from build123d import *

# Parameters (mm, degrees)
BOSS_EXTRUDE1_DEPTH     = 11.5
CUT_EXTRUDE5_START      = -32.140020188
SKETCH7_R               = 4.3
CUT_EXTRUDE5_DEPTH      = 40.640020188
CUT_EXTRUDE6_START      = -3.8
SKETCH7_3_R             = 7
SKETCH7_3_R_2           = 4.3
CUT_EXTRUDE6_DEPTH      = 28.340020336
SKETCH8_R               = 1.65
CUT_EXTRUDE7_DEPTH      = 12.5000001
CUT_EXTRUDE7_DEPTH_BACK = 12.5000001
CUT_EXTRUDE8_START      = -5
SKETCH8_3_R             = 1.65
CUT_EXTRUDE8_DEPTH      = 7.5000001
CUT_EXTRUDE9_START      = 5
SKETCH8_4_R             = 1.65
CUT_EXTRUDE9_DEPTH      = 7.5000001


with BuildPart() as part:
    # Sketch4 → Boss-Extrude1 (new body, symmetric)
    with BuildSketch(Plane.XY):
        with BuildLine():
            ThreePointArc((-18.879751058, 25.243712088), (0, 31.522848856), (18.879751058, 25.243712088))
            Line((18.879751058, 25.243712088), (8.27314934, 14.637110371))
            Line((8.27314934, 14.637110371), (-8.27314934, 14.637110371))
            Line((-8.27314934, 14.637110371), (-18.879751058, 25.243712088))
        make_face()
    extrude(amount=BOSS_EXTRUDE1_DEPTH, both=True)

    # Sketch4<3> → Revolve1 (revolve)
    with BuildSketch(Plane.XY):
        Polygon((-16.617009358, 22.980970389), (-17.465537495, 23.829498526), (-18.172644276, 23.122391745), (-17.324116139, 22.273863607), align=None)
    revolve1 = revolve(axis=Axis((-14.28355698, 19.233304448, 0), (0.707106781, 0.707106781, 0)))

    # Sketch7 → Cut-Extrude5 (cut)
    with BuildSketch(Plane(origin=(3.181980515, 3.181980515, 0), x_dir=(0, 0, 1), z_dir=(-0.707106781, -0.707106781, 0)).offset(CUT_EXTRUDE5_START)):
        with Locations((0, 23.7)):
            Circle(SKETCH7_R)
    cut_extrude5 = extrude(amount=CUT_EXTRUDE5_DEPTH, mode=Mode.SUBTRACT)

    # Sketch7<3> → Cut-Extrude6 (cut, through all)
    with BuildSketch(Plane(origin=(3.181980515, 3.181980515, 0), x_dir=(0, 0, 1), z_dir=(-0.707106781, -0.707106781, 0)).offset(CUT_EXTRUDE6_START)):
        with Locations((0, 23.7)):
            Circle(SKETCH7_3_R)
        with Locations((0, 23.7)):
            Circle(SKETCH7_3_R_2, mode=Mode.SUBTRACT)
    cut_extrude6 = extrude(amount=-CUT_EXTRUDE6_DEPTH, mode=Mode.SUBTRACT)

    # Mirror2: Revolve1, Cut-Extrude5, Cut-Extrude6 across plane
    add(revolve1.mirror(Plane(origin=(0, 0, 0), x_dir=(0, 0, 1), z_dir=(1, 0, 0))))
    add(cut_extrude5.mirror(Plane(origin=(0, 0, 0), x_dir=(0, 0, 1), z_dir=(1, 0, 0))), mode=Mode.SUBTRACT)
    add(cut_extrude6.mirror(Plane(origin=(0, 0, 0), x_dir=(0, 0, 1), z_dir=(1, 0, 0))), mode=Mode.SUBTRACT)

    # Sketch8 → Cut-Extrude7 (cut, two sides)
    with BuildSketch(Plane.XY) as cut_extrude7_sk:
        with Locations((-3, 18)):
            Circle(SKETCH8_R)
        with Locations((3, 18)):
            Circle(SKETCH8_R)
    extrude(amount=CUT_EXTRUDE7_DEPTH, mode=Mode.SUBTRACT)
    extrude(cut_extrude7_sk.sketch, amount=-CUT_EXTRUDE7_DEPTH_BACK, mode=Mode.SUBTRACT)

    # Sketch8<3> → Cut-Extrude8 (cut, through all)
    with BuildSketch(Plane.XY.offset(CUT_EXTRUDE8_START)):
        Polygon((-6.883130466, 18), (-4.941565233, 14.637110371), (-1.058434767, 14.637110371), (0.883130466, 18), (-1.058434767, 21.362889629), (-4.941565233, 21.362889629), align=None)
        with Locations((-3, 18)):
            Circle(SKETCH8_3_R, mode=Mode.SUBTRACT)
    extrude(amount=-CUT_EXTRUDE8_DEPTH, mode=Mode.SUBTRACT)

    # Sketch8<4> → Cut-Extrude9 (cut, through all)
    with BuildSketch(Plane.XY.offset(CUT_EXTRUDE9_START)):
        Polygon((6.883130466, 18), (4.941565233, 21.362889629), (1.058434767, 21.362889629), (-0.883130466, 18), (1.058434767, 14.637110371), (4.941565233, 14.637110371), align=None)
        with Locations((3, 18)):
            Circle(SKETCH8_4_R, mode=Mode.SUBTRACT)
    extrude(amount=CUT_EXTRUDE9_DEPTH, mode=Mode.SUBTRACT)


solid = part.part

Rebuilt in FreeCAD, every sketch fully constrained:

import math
import FreeCAD as App
import Part
import Sketcher
Q = App.Units.Quantity


def add_polygon(sketch, points):
    """Adds a closed chain of lines whose ends are joined by coincident constraints."""
    first, n = sketch.GeometryCount, len(points)
    for a, b in zip(points, points[1:] + points[:1]):
        sketch.addGeometry(Part.LineSegment(App.Vector(*a, 0), App.Vector(*b, 0)), False)
    for i in range(n):
        sketch.addConstraint(Sketcher.Constraint("Coincident", first + i, 2, first + (i + 1) % n, 1))

doc = App.newDocument("Part")
body = doc.addObject("PartDesign::Body", "Body")

# Sketch on XY plane
sketch1 = body.newObject("Sketcher::SketchObject", "Sketch")
sketch1.AttachmentSupport = (doc.getObject("XY_Plane"), [""])
sketch1.MapMode = "FlatFace"
sketch1.addGeometry([
    Part.ArcOfCircle(Part.Circle(App.Vector(0, 0, 0), App.Vector(0, 0, 1), 32), math.radians(53), math.radians(127)),
    Part.LineSegment(App.Vector(-19, 25, 0), App.Vector(-8, 15, 0)),
    Part.LineSegment(App.Vector(-8, 15, 0), App.Vector(8, 15, 0)),
    Part.LineSegment(App.Vector(8, 15, 0), App.Vector(19, 25, 0)),
], False)
sketch1.addConstraint([
    Sketcher.Constraint("Coincident", 0, 2, 1, 1),
    Sketcher.Constraint("Coincident", 1, 2, 2, 1),
    Sketcher.Constraint("Coincident", 2, 2, 3, 1),
    Sketcher.Constraint("Coincident", 3, 2, 0, 1),
    Sketcher.Constraint("Horizontal", 2),
    Sketcher.Constraint("Coincident", 0, 3, -1, 1),
    Sketcher.Constraint("Perpendicular", 1, 3),
    Sketcher.Constraint("Horizontal", 0, 2, 3, 2),
    Sketcher.Constraint("Equal", 1, 3),
    Sketcher.Constraint("Distance", 1, Q("15 mm")),
    Sketcher.Constraint("Radius", 0, Q("31.522849 mm")),
    Sketcher.Constraint("DistanceX", 2, 1, 2, 2, Q("16.546299 mm")),
])
pad1 = body.newObject("PartDesign::Pad", "Pad")
pad1.Profile = sketch1
pad1.Length = 23
pad1.Midplane = True

# Sketch on XY plane
sketch2 = body.newObject("Sketcher::SketchObject", "Sketch001")
sketch2.AttachmentSupport = (doc.getObject("XY_Plane"), [""])
sketch2.MapMode = "FlatFace"
add_polygon(sketch2, [(-16.6, 23), (-17.5, 23.8), (-18.2, 23.1), (-17.3, 22.3)])  # lines 0-3
sketch2.addGeometry(Part.LineSegment(App.Vector(-14.3, 19.2, 0), App.Vector(-13.6, 19.9, 0)), True)  # axis
sketch2.addConstraint([
    Sketcher.Constraint("Perpendicular", 0, 1),
    Sketcher.Constraint("Perpendicular", 1, 2),
    Sketcher.Constraint("Perpendicular", 2, 3),
    Sketcher.Constraint("Parallel", 3, 4),
    Sketcher.Constraint("Equal", 3, 4),
    Sketcher.Constraint("Angle", 0, Q("135 deg")),
    Sketcher.Constraint("Distance", 1, Q("1 mm")),
    Sketcher.Constraint("Distance", 0, Q("1.2 mm")),
    Sketcher.Constraint("DistanceY", -1, 1, 0, 2, Q("23.829499 mm")),
    Sketcher.Constraint("DistanceX", 3, 2, -1, 1, Q("16.617009 mm")),
    Sketcher.Constraint("DistanceX", 4, 2, -1, 1, Q("13.57645 mm")),
    Sketcher.Constraint("DistanceY", -1, 1, 4, 2, Q("19.940411 mm")),
])
revolution = body.newObject("PartDesign::Revolution", "Revolution")
revolution.Profile = sketch2
revolution.ReferenceAxis = (sketch2, ["Axis0"])
revolution.Angle = 360

# Sketch on an angled plane
sketch3 = body.newObject("Sketcher::SketchObject", "Sketch002")
sketch3.Placement = App.Placement(App.Vector(25.908407, 25.908407, 0), App.Rotation(App.Vector(0, 0, 1), App.Vector(-0.707106781, 0.707106781, 0), App.Vector(-0.707106781, -0.707106781, 0), "ZXY"))
sketch3.addGeometry(Part.Circle(App.Vector(0, 23.7, 0), App.Vector(0, 0, 1), 4.3), False)
sketch3.addConstraint([
    Sketcher.Constraint("PointOnObject", 0, 3, -2),
    Sketcher.Constraint("Diameter", 0, Q("8.6 mm")),
    Sketcher.Constraint("DistanceY", -1, 1, 0, 3, Q("23.7 mm")),
])
pocket1 = body.newObject("PartDesign::Pocket", "Pocket")
pocket1.Profile = sketch3
pocket1.Length = 40.64002
pocket1.Reversed = True

# Sketch on an angled plane
sketch4 = body.newObject("Sketcher::SketchObject", "Sketch003")
sketch4.Placement = App.Placement(App.Vector(5.868986, 5.868986, 0), App.Rotation(App.Vector(0, 0, 1), App.Vector(-0.707106781, 0.707106781, 0), App.Vector(-0.707106781, -0.707106781, 0), "ZXY"))
sketch4.addGeometry([
    Part.Circle(App.Vector(0, 23.7, 0), App.Vector(0, 0, 1), 7),
    Part.Circle(App.Vector(0, 23.7, 0), App.Vector(0, 0, 1), 4.3),
], False)
sketch4.addConstraint([
    Sketcher.Constraint("Coincident", 1, 3, 0, 3),
    Sketcher.Constraint("PointOnObject", 0, 3, -2),
    Sketcher.Constraint("Diameter", 0, Q("14 mm")),
    Sketcher.Constraint("Diameter", 1, Q("8.6 mm")),
    Sketcher.Constraint("DistanceY", -1, 1, 0, 3, Q("23.7 mm")),
])
pocket2 = body.newObject("PartDesign::Pocket", "Pocket001")
pocket2.Profile = sketch4
pocket2.Type = "ThroughAll"
doc.recompute()

mirrored = body.newObject("PartDesign::Mirrored", "Mirrored")
mirrored.Originals = [revolution, pocket1, pocket2]
mirrored.MirrorPlane = (doc.getObject("YZ_Plane"), [""])
body.Tip = mirrored

# Sketch on XY plane
sketch5 = body.newObject("Sketcher::SketchObject", "Sketch004")
sketch5.AttachmentSupport = (doc.getObject("XY_Plane"), [""])
sketch5.MapMode = "FlatFace"
sketch5.addGeometry([
    Part.Circle(App.Vector(-3, 18, 0), App.Vector(0, 0, 1), 1.6),
    Part.Circle(App.Vector(3, 18, 0), App.Vector(0, 0, 1), 1.6),
], False)
sketch5.addConstraint([
    Sketcher.Constraint("Equal", 0, 1),
    Sketcher.Constraint("Symmetric", 0, 3, 1, 3, -2),
    Sketcher.Constraint("Diameter", 0, Q("3.3 mm")),
    Sketcher.Constraint("DistanceX", 0, 3, -1, 1, Q("3 mm")),
    Sketcher.Constraint("DistanceY", -1, 1, 0, 3, Q("18 mm")),
])
pocket3 = body.newObject("PartDesign::Pocket", "Pocket002")
pocket3.Profile = sketch5
pocket3.Type = "ThroughAll"
pocket3.Midplane = True

# Sketch on XY plane
sketch6 = body.newObject("Sketcher::SketchObject", "Sketch005")
sketch6.AttachmentSupport = (doc.getObject("XY_Plane"), [""])
sketch6.MapMode = "FlatFace"
sketch6.AttachmentOffset = App.Placement(App.Vector(0, 0, -5), App.Rotation())
add_polygon(sketch6, [(-6.9, 18), (-4.9, 14.6), (-1.1, 14.6), (0.9, 18), (-1.1, 21.4), (-4.9, 21.4)])  # lines 0-5
sketch6.addGeometry(Part.Circle(App.Vector(-3, 18, 0), App.Vector(0, 0, 1), 1.6), False)  # 6
sketch6.addConstraint([
    Sketcher.Constraint("Horizontal", 1),
    Sketcher.Constraint("Horizontal", 4),
    Sketcher.Constraint("Parallel", 0, 3),
    Sketcher.Constraint("Parallel", 2, 5),
    Sketcher.Constraint("Horizontal", 6, 3, 2, 2),
    Sketcher.Constraint("Horizontal", 2, 2, 5, 2),
    Sketcher.Constraint("Vertical", 1, 2, 3, 2),
    Sketcher.Constraint("Vertical", 0, 2, 4, 2),
    Sketcher.Constraint("Diameter", 6, Q("3.3 mm")),
    Sketcher.Constraint("Angle", 0, Q("-60 deg")),
    Sketcher.Constraint("DistanceX", 6, 3, -1, 1, Q("3 mm")),
    Sketcher.Constraint("DistanceY", -1, 1, 6, 3, Q("18 mm")),
    Sketcher.Constraint("DistanceX", 1, 1, 1, 2, Q("3.88313 mm")),
    Sketcher.Constraint("Distance", 0, Q("3.88313 mm")),
    Sketcher.Constraint("DistanceX", -1, 1, 2, 2, Q("0.88313 mm")),
])
pocket4 = body.newObject("PartDesign::Pocket", "Pocket003")
pocket4.Profile = sketch6
pocket4.Type = "ThroughAll"

# Sketch on XY plane
sketch7 = body.newObject("Sketcher::SketchObject", "Sketch006")
sketch7.AttachmentSupport = (doc.getObject("XY_Plane"), [""])
sketch7.MapMode = "FlatFace"
sketch7.AttachmentOffset = App.Placement(App.Vector(0, 0, 5), App.Rotation())
add_polygon(sketch7, [(6.9, 18), (4.9, 21.4), (1.1, 21.4), (-0.9, 18), (1.1, 14.6), (4.9, 14.6)])  # lines 0-5
sketch7.addGeometry(Part.Circle(App.Vector(3, 18, 0), App.Vector(0, 0, 1), 1.6), False)  # 6
sketch7.addConstraint([
    Sketcher.Constraint("Horizontal", 1),
    Sketcher.Constraint("Horizontal", 4),
    Sketcher.Constraint("Parallel", 0, 3),
    Sketcher.Constraint("Parallel", 2, 5),
    Sketcher.Constraint("Horizontal", 6, 3, 2, 2),
    Sketcher.Constraint("Horizontal", 2, 2, 5, 2),
    Sketcher.Constraint("Vertical", 1, 2, 3, 2),
    Sketcher.Constraint("Vertical", 0, 2, 4, 2),
    Sketcher.Constraint("Diameter", 6, Q("3.3 mm")),
    Sketcher.Constraint("Angle", 0, Q("120 deg")),
    Sketcher.Constraint("DistanceX", -1, 1, 6, 3, Q("3 mm")),
    Sketcher.Constraint("DistanceY", -1, 1, 6, 3, Q("18 mm")),
    Sketcher.Constraint("DistanceX", 1, 2, 1, 1, Q("3.88313 mm")),
    Sketcher.Constraint("Distance", 0, Q("3.88313 mm")),
    Sketcher.Constraint("DistanceX", 2, 2, -1, 1, Q("0.88313 mm")),
])
pocket5 = body.newObject("PartDesign::Pocket", "Pocket004")
pocket5.Profile = sketch7
pocket5.Type = "ThroughAll"
pocket5.Reversed = True

doc.recompute()
